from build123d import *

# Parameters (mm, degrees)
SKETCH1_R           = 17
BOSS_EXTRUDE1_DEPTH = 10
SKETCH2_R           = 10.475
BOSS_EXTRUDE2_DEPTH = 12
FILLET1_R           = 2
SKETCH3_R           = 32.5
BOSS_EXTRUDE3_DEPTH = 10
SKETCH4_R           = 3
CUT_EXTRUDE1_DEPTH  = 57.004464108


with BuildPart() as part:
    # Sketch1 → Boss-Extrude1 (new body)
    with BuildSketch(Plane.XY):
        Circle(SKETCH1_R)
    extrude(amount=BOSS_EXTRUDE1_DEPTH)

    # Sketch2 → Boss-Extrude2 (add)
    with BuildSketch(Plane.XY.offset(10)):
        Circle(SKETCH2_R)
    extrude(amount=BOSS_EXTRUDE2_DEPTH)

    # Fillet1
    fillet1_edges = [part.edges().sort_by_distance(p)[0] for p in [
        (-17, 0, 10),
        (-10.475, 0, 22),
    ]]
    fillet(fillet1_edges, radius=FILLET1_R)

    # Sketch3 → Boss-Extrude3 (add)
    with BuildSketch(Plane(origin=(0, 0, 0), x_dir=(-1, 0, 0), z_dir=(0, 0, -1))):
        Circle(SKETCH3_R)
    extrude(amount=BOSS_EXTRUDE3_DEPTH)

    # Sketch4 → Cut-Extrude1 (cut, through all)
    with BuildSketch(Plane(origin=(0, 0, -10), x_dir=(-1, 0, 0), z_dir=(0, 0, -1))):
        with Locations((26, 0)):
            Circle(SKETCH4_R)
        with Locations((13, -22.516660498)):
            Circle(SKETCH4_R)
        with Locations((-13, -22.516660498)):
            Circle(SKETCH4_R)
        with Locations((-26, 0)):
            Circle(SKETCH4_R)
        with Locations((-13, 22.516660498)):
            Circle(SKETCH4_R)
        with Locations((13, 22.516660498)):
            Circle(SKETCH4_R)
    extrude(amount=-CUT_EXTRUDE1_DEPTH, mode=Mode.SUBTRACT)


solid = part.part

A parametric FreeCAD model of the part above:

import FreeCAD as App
import Part
import Sketcher
Q = App.Units.Quantity


def edges_at(feature, points):
    """Names of the edges that pass closest to the given points."""
    edges = feature.Shape.Edges
    near = lambda p: min(range(len(edges)), key=lambda i: edges[i].distToShape(Part.Vertex(*p))[0])
    return sorted({f"Edge{near(p) + 1}" for p in points})

doc = App.newDocument("Part")
params = doc.addObject("Spreadsheet::Sheet", "Params")
for row, (alias, value) in enumerate([
    ("sketch1_diameter", "34 mm"),
    ("pad1_length", "10 mm"),
    ("sketch2_diameter", "20.95 mm"),
    ("pad2_length", "12 mm"),
    ("fillet_radius", "2 mm"),
    ("sketch3_diameter", "65 mm"),
    ("pad3_length", "10 mm"),
    ("sketch4_diameter", "6 mm"),
], start=1):
    params.set(f"A{row}", alias)
    params.set(f"B{row}", "=" + value)
    params.setAlias(f"B{row}", alias)

body = doc.addObject("PartDesign::Body", "Body")

# Sketch on XY plane
sketch1 = doc.addObject("Sketcher::SketchObject", "Sketch")
body.addObject(sketch1)
sketch1.AttachmentSupport = (doc.XY_Plane, [""])
sketch1.MapMode = "FlatFace"
sketch1.addGeometry(Part.Circle(App.Vector(0, 0, 0), App.Vector(0, 0, 1), 17), False)
sketch1.addConstraint([
    Sketcher.Constraint("Coincident", 0, 3, -1, 1),
    Sketcher.Constraint("Diameter", 0, Q("34 mm")),
])
sketch1.setExpression("Constraints[1]", "Params.sketch1_diameter")
pad1 = doc.addObject("PartDesign::Pad", "Pad")
body.addObject(pad1)
pad1.Profile = sketch1
pad1.setExpression("Length", "Params.pad1_length")

# Sketch on XY plane
sketch2 = doc.addObject("Sketcher::SketchObject", "Sketch001")
body.addObject(sketch2)
sketch2.AttachmentSupport = (doc.XY_Plane, [""])
sketch2.MapMode = "FlatFace"
sketch2.AttachmentOffset = App.Placement(App.Vector(0, 0, 10), App.Rotation())
sketch2.addGeometry(Part.Circle(App.Vector(0, 0, 0), App.Vector(0, 0, 1), 10), False)
sketch2.addConstraint([
    Sketcher.Constraint("Coincident", 0, 3, -1, 1),
    Sketcher.Constraint("Diameter", 0, Q("20.95 mm")),
])
sketch2.setExpression("Constraints[1]", "Params.sketch2_diameter")
pad2 = doc.addObject("PartDesign::Pad", "Pad001")
body.addObject(pad2)
pad2.Profile = sketch2
pad2.setExpression("Length", "Params.pad2_length")
doc.recompute()

fillet = doc.addObject("PartDesign::Fillet", "Fillet")
body.addObject(fillet)
fillet.Base = (pad2, edges_at(pad2, [(-17, 0, 10), (-10.475, 0, 22)]))
fillet.setExpression("Radius", "Params.fillet_radius")

# Sketch on XY plane
sketch3 = doc.addObject("Sketcher::SketchObject", "Sketch002")
body.addObject(sketch3)
sketch3.AttachmentSupport = (doc.XY_Plane, [""])
sketch3.MapMode = "FlatFace"
sketch3.addGeometry(Part.Circle(App.Vector(0, 0, 0), App.Vector(0, 0, 1), 32), False)
sketch3.addConstraint([
    Sketcher.Constraint("Coincident", 0, 3, -1, 1),
    Sketcher.Constraint("Diameter", 0, Q("65 mm")),
])
sketch3.setExpression("Constraints[1]", "Params.sketch3_diameter")
pad3 = doc.addObject("PartDesign::Pad", "Pad002")
body.addObject(pad3)
pad3.Profile = sketch3
pad3.setExpression("Length", "Params.pad3_length")
pad3.Reversed = True

# Sketch on XY plane
sketch4 = doc.addObject("Sketcher::SketchObject", "Sketch003")
body.addObject(sketch4)
sketch4.AttachmentSupport = (doc.XY_Plane, [""])
sketch4.MapMode = "FlatFace"
sketch4.AttachmentOffset = App.Placement(App.Vector(0, 0, -10), App.Rotation())
sketch4.addGeometry([
    Part.Circle(App.Vector(-26, 0, 0), App.Vector(0, 0, 1), 3),  # 0
    Part.Circle(App.Vector(-13, -22.5, 0), App.Vector(0, 0, 1), 3),  # 1
    Part.Circle(App.Vector(13, -22.5, 0), App.Vector(0, 0, 1), 3),  # 2
    Part.Circle(App.Vector(26, 0, 0), App.Vector(0, 0, 1), 3),  # 3
    Part.Circle(App.Vector(13, 22.5, 0), App.Vector(0, 0, 1), 3),  # 4
    Part.Circle(App.Vector(-13, 22.5, 0), App.Vector(0, 0, 1), 3),  # 5
], False)
sketch4.addConstraint([
    Sketcher.Constraint("Equal", 0, 1),
    Sketcher.Constraint("Equal", 1, 2),
    Sketcher.Constraint("Equal", 2, 3),
    Sketcher.Constraint("Equal", 3, 4),
    Sketcher.Constraint("Equal", 4, 5),
    Sketcher.Constraint("Symmetric", 0, 3, 3, 3, -1, 1),
    Sketcher.Constraint("Symmetric", 1, 3, 4, 3, -1, 1),
    Sketcher.Constraint("Symmetric", 2, 3, 5, 3, -1, 1),
    Sketcher.Constraint("Symmetric", 1, 3, 2, 3, -2),
    Sketcher.Constraint("PointOnObject", 0, 3, -1),
    Sketcher.Constraint("Diameter", 0, Q("6 mm")),
    Sketcher.Constraint("DistanceX", 0, 3, -1, 1, Q("26 mm")),
    Sketcher.Constraint("DistanceX", 1, 3, -1, 1, Q("13 mm")),
    Sketcher.Constraint("DistanceY", 1, 3, -1, 1, Q("22.51666 mm")),
])
sketch4.setExpression("Constraints[10]", "Params.sketch4_diameter")
pocket1 = doc.addObject("PartDesign::Pocket", "Pocket")
body.addObject(pocket1)
pocket1.Profile = sketch4
pocket1.Type = "ThroughAll"
pocket1.Reversed = True

doc.recompute()
